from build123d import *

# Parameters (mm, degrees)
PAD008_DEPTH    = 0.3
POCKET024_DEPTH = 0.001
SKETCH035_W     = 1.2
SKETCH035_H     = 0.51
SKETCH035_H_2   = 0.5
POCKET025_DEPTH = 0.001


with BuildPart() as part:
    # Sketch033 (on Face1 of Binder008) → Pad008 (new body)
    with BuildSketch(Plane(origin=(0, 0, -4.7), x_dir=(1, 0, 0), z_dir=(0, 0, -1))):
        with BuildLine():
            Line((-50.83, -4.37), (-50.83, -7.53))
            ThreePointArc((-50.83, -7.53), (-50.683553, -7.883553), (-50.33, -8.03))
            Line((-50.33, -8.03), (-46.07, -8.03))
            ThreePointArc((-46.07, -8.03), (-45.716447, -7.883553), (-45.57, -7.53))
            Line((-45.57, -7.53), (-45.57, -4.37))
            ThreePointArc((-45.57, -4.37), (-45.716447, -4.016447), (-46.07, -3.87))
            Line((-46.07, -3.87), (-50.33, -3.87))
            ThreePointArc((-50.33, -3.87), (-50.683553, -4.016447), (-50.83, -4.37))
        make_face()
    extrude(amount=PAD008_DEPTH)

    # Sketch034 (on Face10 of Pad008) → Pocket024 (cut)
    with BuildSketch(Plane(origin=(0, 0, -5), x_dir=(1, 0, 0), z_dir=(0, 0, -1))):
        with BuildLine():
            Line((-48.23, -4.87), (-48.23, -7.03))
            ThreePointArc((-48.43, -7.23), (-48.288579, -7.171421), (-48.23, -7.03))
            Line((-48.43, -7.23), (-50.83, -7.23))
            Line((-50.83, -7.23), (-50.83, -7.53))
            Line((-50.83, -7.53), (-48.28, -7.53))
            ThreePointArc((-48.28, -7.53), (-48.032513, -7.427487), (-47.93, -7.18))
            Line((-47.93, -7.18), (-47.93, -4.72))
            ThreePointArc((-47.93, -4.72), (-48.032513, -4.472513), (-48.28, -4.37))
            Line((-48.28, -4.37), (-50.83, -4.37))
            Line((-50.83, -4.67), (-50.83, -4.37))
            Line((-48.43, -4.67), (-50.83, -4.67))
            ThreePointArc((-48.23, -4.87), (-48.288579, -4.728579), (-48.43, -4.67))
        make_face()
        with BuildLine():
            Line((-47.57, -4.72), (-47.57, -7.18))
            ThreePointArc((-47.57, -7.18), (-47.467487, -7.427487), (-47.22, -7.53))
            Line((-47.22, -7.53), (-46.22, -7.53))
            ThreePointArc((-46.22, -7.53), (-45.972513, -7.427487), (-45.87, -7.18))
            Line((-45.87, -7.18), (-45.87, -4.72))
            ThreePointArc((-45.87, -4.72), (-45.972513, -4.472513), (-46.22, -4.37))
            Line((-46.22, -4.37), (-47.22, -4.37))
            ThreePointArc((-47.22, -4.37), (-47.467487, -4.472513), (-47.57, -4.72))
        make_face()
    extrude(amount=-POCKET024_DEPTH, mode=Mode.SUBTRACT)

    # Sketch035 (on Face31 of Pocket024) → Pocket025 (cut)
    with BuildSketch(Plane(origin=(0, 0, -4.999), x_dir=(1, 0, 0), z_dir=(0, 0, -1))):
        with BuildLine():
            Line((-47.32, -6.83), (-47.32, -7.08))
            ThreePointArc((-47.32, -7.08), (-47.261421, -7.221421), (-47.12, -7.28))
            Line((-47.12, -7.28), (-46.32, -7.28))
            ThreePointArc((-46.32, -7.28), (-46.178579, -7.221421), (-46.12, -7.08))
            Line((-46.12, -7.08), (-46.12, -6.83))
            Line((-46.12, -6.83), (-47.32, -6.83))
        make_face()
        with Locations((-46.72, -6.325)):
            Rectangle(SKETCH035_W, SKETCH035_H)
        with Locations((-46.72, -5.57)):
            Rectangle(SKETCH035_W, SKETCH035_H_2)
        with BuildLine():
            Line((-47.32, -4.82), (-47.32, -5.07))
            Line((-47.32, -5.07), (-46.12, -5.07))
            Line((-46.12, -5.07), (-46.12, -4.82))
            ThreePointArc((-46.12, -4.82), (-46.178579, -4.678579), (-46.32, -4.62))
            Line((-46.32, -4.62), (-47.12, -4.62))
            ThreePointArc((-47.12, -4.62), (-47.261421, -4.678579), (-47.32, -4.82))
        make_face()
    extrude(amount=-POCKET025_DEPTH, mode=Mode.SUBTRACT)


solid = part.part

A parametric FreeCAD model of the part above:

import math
import FreeCAD as App
import Part
import Sketcher

V = App.Vector
Q = App.Units.Quantity


def add_polygon(sketch, points):
    """Adds a closed chain of lines whose ends are joined by coincident constraints."""
    first, n = sketch.GeometryCount, len(points)
    for a, b in zip(points, points[1:] + points[:1]):
        sketch.addGeometry(Part.LineSegment(App.Vector(*a, 0), App.Vector(*b, 0)), False)
    for i in range(n):
        sketch.addConstraint(Sketcher.Constraint("Coincident", first + i, 2, first + (i + 1) % n, 1))

doc = App.newDocument("Part")
body = doc.addObject("PartDesign::Body", "Body")

# Sketch on XY plane
sketch1 = body.newObject("Sketcher::SketchObject", "Sketch")
sketch1.AttachmentSupport = (doc.getObject("XY_Plane"), [""])
sketch1.MapMode = "FlatFace"
sketch1.AttachmentOffset = App.Placement(V(0, 0, -4.7), App.Rotation())
sketch1.addGeometry([
    Part.LineSegment(V(-50.8, 4.4, 0), V(-50.8, 7.5, 0)),  # 0
    Part.ArcOfCircle(Part.Circle(V(-50.3, 7.5, 0), V(0, 0, 1), 0.5), math.radians(90), math.radians(180)),  # 1
    Part.LineSegment(V(-50.3, 8, 0), V(-46.1, 8, 0)),  # 2
    Part.ArcOfCircle(Part.Circle(V(-46.1, 7.5, 0), V(0, 0, 1), 0.5), math.radians(0), math.radians(90)),  # 3
    Part.LineSegment(V(-45.6, 7.5, 0), V(-45.6, 4.4, 0)),  # 4
    Part.ArcOfCircle(Part.Circle(V(-46.1, 4.4, 0), V(0, 0, 1), 0.5), math.radians(-90), math.radians(0)),  # 5
    Part.LineSegment(V(-46.1, 3.9, 0), V(-50.3, 3.9, 0)),  # 6
    Part.ArcOfCircle(Part.Circle(V(-50.3, 4.4, 0), V(0, 0, 1), 0.5), math.radians(-180), math.radians(-90)),  # 7
], False)
sketch1.addConstraint([
    Sketcher.Constraint("Coincident", 0, 2, 1, 2),
    Sketcher.Constraint("Coincident", 1, 1, 2, 1),
    Sketcher.Constraint("Coincident", 2, 2, 3, 2),
    Sketcher.Constraint("Coincident", 3, 1, 4, 1),
    Sketcher.Constraint("Coincident", 4, 2, 5, 2),
    Sketcher.Constraint("Coincident", 5, 1, 6, 1),
    Sketcher.Constraint("Coincident", 6, 2, 7, 2),
    Sketcher.Constraint("Coincident", 7, 1, 0, 1),
    Sketcher.Constraint("Vertical", 0),
    Sketcher.Constraint("Horizontal", 2),
    Sketcher.Constraint("Vertical", 4),
    Sketcher.Constraint("Horizontal", 6),
    Sketcher.Constraint("Equal", 1, 3),
    Sketcher.Constraint("Equal", 3, 5),
    Sketcher.Constraint("Equal", 5, 7),
    Sketcher.Constraint("Horizontal", 3, 3, 0, 2),
    Sketcher.Constraint("Horizontal", 0, 2, 3, 1),
    Sketcher.Constraint("Horizontal", 7, 3, 4, 2),
    Sketcher.Constraint("Horizontal", 4, 2, 7, 1),
    Sketcher.Constraint("Vertical", 7, 3, 1, 1),
    Sketcher.Constraint("Vertical", 5, 3, 2, 2),
    Sketcher.Constraint("Vertical", 2, 2, 5, 1),
    Sketcher.Constraint("Vertical", 1, 1, 6, 2),
    Sketcher.Constraint("Radius", 1, Q("0.500001 mm")),
    Sketcher.Constraint("DistanceX", 2, 1, 2, 2, Q("4.26 mm")),
    Sketcher.Constraint("DistanceY", 0, 1, 0, 2, Q("3.16 mm")),
    Sketcher.Constraint("DistanceX", 1, 3, -1, 1, Q("50.329999 mm")),
    Sketcher.Constraint("DistanceY", -1, 1, 1, 3, Q("7.529999 mm")),
])
pad1 = body.newObject("PartDesign::Pad", "Pad")
pad1.Profile = sketch1
pad1.Length = 0.3
pad1.Reversed = True

# Sketch on XY plane
sketch2 = body.newObject("Sketcher::SketchObject", "Sketch001")
sketch2.AttachmentSupport = (doc.getObject("XY_Plane"), [""])
sketch2.MapMode = "FlatFace"
sketch2.AttachmentOffset = App.Placement(V(0, 0, -5), App.Rotation())
sketch2.addGeometry([
    Part.LineSegment(V(-48.23, 4.87, 0), V(-48.23, 7.03, 0)),  # 0
    Part.ArcOfCircle(Part.Circle(V(-48.43, 7.03, 0), V(0, 0, 1), 0.2), math.radians(0), math.radians(90)),  # 1
    Part.LineSegment(V(-48.43, 7.23, 0), V(-50.83, 7.23, 0)),  # 2
    Part.LineSegment(V(-50.83, 7.23, 0), V(-50.83, 7.53, 0)),  # 3
    Part.LineSegment(V(-50.83, 7.53, 0), V(-48.28, 7.53, 0)),  # 4
    Part.ArcOfCircle(Part.Circle(V(-48.28, 7.18, 0), V(0, 0, 1), 0.35), math.radians(0), math.radians(90)),  # 5
    Part.LineSegment(V(-47.93, 7.18, 0), V(-47.93, 4.72, 0)),  # 6
    Part.ArcOfCircle(Part.Circle(V(-48.28, 4.72, 0), V(0, 0, 1), 0.35), math.radians(-90), math.radians(0)),  # 7
    Part.LineSegment(V(-48.28, 4.37, 0), V(-50.83, 4.37, 0)),  # 8
    Part.LineSegment(V(-50.83, 4.37, 0), V(-50.83, 4.67, 0)),  # 9
    Part.LineSegment(V(-50.83, 4.67, 0), V(-48.43, 4.67, 0)),  # 10
    Part.ArcOfCircle(Part.Circle(V(-48.43, 4.87, 0), V(0, 0, 1), 0.2), math.radians(-90), math.radians(0)),  # 11
    Part.LineSegment(V(-47.57, 4.72, 0), V(-47.57, 7.18, 0)),  # 12
    Part.ArcOfCircle(Part.Circle(V(-47.22, 7.18, 0), V(0, 0, 1), 0.35), math.radians(90), math.radians(180)),  # 13
    Part.LineSegment(V(-47.22, 7.53, 0), V(-46.22, 7.53, 0)),  # 14
    Part.ArcOfCircle(Part.Circle(V(-46.22, 7.18, 0), V(0, 0, 1), 0.35), math.radians(0), math.radians(90)),  # 15
    Part.LineSegment(V(-45.87, 7.18, 0), V(-45.87, 4.72, 0)),  # 16
    Part.ArcOfCircle(Part.Circle(V(-46.22, 4.72, 0), V(0, 0, 1), 0.35), math.radians(-90), math.radians(0)),  # 17
    Part.LineSegment(V(-46.22, 4.37, 0), V(-47.22, 4.37, 0)),  # 18
    Part.ArcOfCircle(Part.Circle(V(-47.22, 4.72, 0), V(0, 0, 1), 0.35), math.radians(-180), math.radians(-90)),  # 19
], False)
sketch2.addConstraint([
    Sketcher.Constraint("Coincident", 0, 2, 1, 1),
    Sketcher.Constraint("Coincident", 1, 2, 2, 1),
    Sketcher.Constraint("Coincident", 2, 2, 3, 1),
    Sketcher.Constraint("Coincident", 3, 2, 4, 1),
    Sketcher.Constraint("Coincident", 4, 2, 5, 2),
    Sketcher.Constraint("Coincident", 5, 1, 6, 1),
    Sketcher.Constraint("Coincident", 6, 2, 7, 2),
    Sketcher.Constraint("Coincident", 7, 1, 8, 1),
    Sketcher.Constraint("Coincident", 8, 2, 9, 1),
    Sketcher.Constraint("Coincident", 9, 2, 10, 1),
    Sketcher.Constraint("Coincident", 10, 2, 11, 1),
    Sketcher.Constraint("Coincident", 11, 2, 0, 1),
    Sketcher.Constraint("Coincident", 12, 2, 13, 2),
    Sketcher.Constraint("Coincident", 13, 1, 14, 1),
    Sketcher.Constraint("Coincident", 14, 2, 15, 2),
    Sketcher.Constraint("Coincident", 15, 1, 16, 1),
    Sketcher.Constraint("Coincident", 16, 2, 17, 2),
    Sketcher.Constraint("Coincident", 17, 1, 18, 1),
    Sketcher.Constraint("Coincident", 18, 2, 19, 2),
    Sketcher.Constraint("Coincident", 19, 1, 12, 1),
    Sketcher.Constraint("Vertical", 0),
    Sketcher.Constraint("Horizontal", 2),
    Sketcher.Constraint("Vertical", 3),
    Sketcher.Constraint("Horizontal", 4),
    Sketcher.Constraint("Vertical", 6),
    Sketcher.Constraint("Horizontal", 8),
    Sketcher.Constraint("Vertical", 9),
    Sketcher.Constraint("Horizontal", 10),
    Sketcher.Constraint("Vertical", 12),
    Sketcher.Constraint("Horizontal", 14),
    Sketcher.Constraint("Vertical", 16),
    Sketcher.Constraint("Horizontal", 18),
    Sketcher.Constraint("Equal", 5, 7),
    Sketcher.Constraint("Equal", 1, 11),
    Sketcher.Constraint("Equal", 7, 13),
    Sketcher.Constraint("Equal", 13, 15),
    Sketcher.Constraint("Equal", 15, 17),
    Sketcher.Constraint("Equal", 17, 19),
    Sketcher.Constraint("Horizontal", 5, 3, 13, 3),
    Sketcher.Constraint("Horizontal", 7, 3, 17, 3),
    Sketcher.Constraint("Horizontal", 1, 3, 0, 2),
    Sketcher.Constraint("Horizontal", 15, 3, 5, 1),
    Sketcher.Constraint("Horizontal", 19, 3, 6, 2),
    Sketcher.Constraint("Horizontal", 5, 1, 12, 2),
    Sketcher.Constraint("Horizontal", 12, 2, 15, 1),
    Sketcher.Constraint("Horizontal", 6, 2, 16, 2),
    Sketcher.Constraint("Horizontal", 16, 2, 19, 1),
    Sketcher.Constraint("Vertical", 11, 3, 1, 2),
    Sketcher.Constraint("Vertical", 7, 3, 4, 2),
    Sketcher.Constraint("Vertical", 4, 2, 7, 1),
    Sketcher.Constraint("Vertical", 3, 2, 8, 2),
    Sketcher.Constraint("Vertical", 1, 2, 10, 2),
    Sketcher.Constraint("Vertical", 19, 3, 13, 1),
    Sketcher.Constraint("Vertical", 17, 3, 14, 2),
    Sketcher.Constraint("Vertical", 14, 2, 17, 1),
    Sketcher.Constraint("Vertical", 13, 1, 18, 2),
    Sketcher.Constraint("Equal", 3, 9),
    Sketcher.Constraint("Radius", 1, Q("0.200001 mm")),
    Sketcher.Constraint("DistanceX", 14, 1, 14, 2, Q("1 mm")),
    Sketcher.Constraint("Radius", 5, Q("0.350001 mm")),
    Sketcher.Constraint("DistanceX", 2, 2, 2, 1, Q("2.4 mm")),
    Sketcher.Constraint("DistanceY", 3, 1, 3, 2, Q("0.3 mm")),
    Sketcher.Constraint("DistanceX", 4, 1, 4, 2, Q("2.55 mm")),
    Sketcher.Constraint("DistanceY", 0, 1, 0, 2, Q("2.16 mm")),
    Sketcher.Constraint("DistanceY", 6, 2, 6, 1, Q("2.46 mm")),
    Sketcher.Constraint("DistanceX", 1, 3, -1, 1, Q("48.430001 mm")),
    Sketcher.Constraint("DistanceY", -1, 1, 1, 3, Q("7.029999 mm")),
    Sketcher.Constraint("DistanceX", 13, 3, -1, 1, Q("47.219999 mm")),
])
pocket1 = body.newObject("PartDesign::Pocket", "Pocket")
pocket1.Profile = sketch2
pocket1.Length = 0.001
pocket1.Reversed = True

# Sketch on XY plane
sketch3 = body.newObject("Sketcher::SketchObject", "Sketch002")
sketch3.AttachmentSupport = (doc.getObject("XY_Plane"), [""])
sketch3.MapMode = "FlatFace"
sketch3.AttachmentOffset = App.Placement(V(0, 0, -4.999), App.Rotation())
sketch3.addGeometry(Part.LineSegment(V(-47.32, 6.83, 0), V(-47.32, 7.08, 0)), False)  # 0
sketch3.addGeometry(Part.ArcOfCircle(Part.Circle(V(-47.12, 7.08, 0), V(0, 0, 1), 0.2), math.radians(90), math.radians(180)), False)  # 1
sketch3.addGeometry(Part.LineSegment(V(-47.12, 7.28, 0), V(-46.32, 7.28, 0)), False)  # 2
sketch3.addGeometry(Part.ArcOfCircle(Part.Circle(V(-46.32, 7.08, 0), V(0, 0, 1), 0.2), math.radians(0), math.radians(90)), False)  # 3
sketch3.addGeometry(Part.LineSegment(V(-46.12, 7.08, 0), V(-46.12, 6.83, 0)), False)  # 4
sketch3.addGeometry(Part.LineSegment(V(-46.12, 6.83, 0), V(-47.32, 6.83, 0)), False)  # 5
add_polygon(sketch3, [(-47.32, 6.07), (-47.32, 6.58), (-46.12, 6.58), (-46.12, 6.07)])  # lines 6-9
add_polygon(sketch3, [(-47.32, 5.32), (-47.32, 5.82), (-46.12, 5.82), (-46.12, 5.32)])  # lines 10-13
sketch3.addGeometry(Part.LineSegment(V(-47.32, 4.82, 0), V(-47.32, 5.07, 0)), False)  # 14
sketch3.addGeometry(Part.LineSegment(V(-47.32, 5.07, 0), V(-46.12, 5.07, 0)), False)  # 15
sketch3.addGeometry(Part.LineSegment(V(-46.12, 5.07, 0), V(-46.12, 4.82, 0)), False)  # 16
sketch3.addGeometry(Part.ArcOfCircle(Part.Circle(V(-46.32, 4.82, 0), V(0, 0, 1), 0.2), math.radians(-90), math.radians(0)), False)  # 17
sketch3.addGeometry(Part.LineSegment(V(-46.32, 4.62, 0), V(-47.12, 4.62, 0)), False)  # 18
sketch3.addGeometry(Part.ArcOfCircle(Part.Circle(V(-47.12, 4.82, 0), V(0, 0, 1), 0.2), math.radians(-180), math.radians(-90)), False)  # 19
sketch3.addConstraint([
    Sketcher.Constraint("Coincident", 0, 2, 1, 2),
    Sketcher.Constraint("Coincident", 1, 1, 2, 1),
    Sketcher.Constraint("Coincident", 2, 2, 3, 2),
    Sketcher.Constraint("Coincident", 3, 1, 4, 1),
    Sketcher.Constraint("Coincident", 4, 2, 5, 1),
    Sketcher.Constraint("Coincident", 5, 2, 0, 1),
    Sketcher.Constraint("Coincident", 14, 2, 15, 1),
    Sketcher.Constraint("Coincident", 15, 2, 16, 1),
    Sketcher.Constraint("Coincident", 16, 2, 17, 2),
    Sketcher.Constraint("Coincident", 17, 1, 18, 1),
    Sketcher.Constraint("Coincident", 18, 2, 19, 2),
    Sketcher.Constraint("Coincident", 19, 1, 14, 1),
    Sketcher.Constraint("Vertical", 0),
    Sketcher.Constraint("Horizontal", 2),
    Sketcher.Constraint("Vertical", 4),
    Sketcher.Constraint("Horizontal", 5),
    Sketcher.Constraint("Vertical", 6),
    Sketcher.Constraint("Horizontal", 7),
    Sketcher.Constraint("Vertical", 8),
    Sketcher.Constraint("Horizontal", 9),
    Sketcher.Constraint("Vertical", 10),
    Sketcher.Constraint("Horizontal", 11),
    Sketcher.Constraint("Vertical", 12),
    Sketcher.Constraint("Horizontal", 13),
    Sketcher.Constraint("Vertical", 14),
    Sketcher.Constraint("Horizontal", 15),
    Sketcher.Constraint("Vertical", 16),
    Sketcher.Constraint("Horizontal", 18),
    Sketcher.Constraint("Equal", 1, 3),
    Sketcher.Constraint("Equal", 3, 17),
    Sketcher.Constraint("Equal", 17, 19),
    Sketcher.Constraint("Horizontal", 3, 3, 0, 2),
    Sketcher.Constraint("Horizontal", 0, 2, 3, 1),
    Sketcher.Constraint("Horizontal", 19, 3, 16, 2),
    Sketcher.Constraint("Horizontal", 16, 2, 19, 1),
    Sketcher.Constraint("Vertical", 3, 3, 17, 3),
    Sketcher.Constraint("Vertical", 1, 3, 19, 3),
    Sketcher.Constraint("Vertical", 19, 3, 1, 1),
    Sketcher.Constraint("Vertical", 17, 3, 2, 2),
    Sketcher.Constraint("Vertical", 5, 2, 6, 2),
    Sketcher.Constraint("Vertical", 4, 2, 7, 2),
    Sketcher.Constraint("Vertical", 9, 2, 10, 2),
    Sketcher.Constraint("Vertical", 8, 2, 11, 2),
    Sketcher.Constraint("Vertical", 2, 2, 17, 1),
    Sketcher.Constraint("Vertical", 1, 1, 18, 2),
    Sketcher.Constraint("Equal", 4, 14),
    Sketcher.Constraint("Radius", 1, Q("0.200001 mm")),
    Sketcher.Constraint("DistanceX", 2, 1, 2, 2, Q("0.8 mm")),
    Sketcher.Constraint("DistanceY", 10, 1, 10, 2, Q("0.5 mm")),
    Sketcher.Constraint("DistanceY", 19, 3, 10, 2, Q("0.999999 mm")),
    Sketcher.Constraint("DistanceY", 14, 2, 9, 2, Q("1 mm")),
    Sketcher.Constraint("DistanceY", 0, 1, 0, 2, Q("0.25 mm")),
    Sketcher.Constraint("DistanceY", 6, 1, 6, 2, Q("0.51 mm")),
    Sketcher.Constraint("DistanceY", 6, 2, 0, 2, Q("0.5 mm")),
    Sketcher.Constraint("DistanceX", 1, 3, -1, 1, Q("47.119999 mm")),
    Sketcher.Constraint("DistanceY", -1, 1, 1, 3, Q("7.079999 mm")),
])
pocket2 = body.newObject("PartDesign::Pocket", "Pocket001")
pocket2.Profile = sketch3
pocket2.Length = 0.001
pocket2.Reversed = True

doc.recompute()
